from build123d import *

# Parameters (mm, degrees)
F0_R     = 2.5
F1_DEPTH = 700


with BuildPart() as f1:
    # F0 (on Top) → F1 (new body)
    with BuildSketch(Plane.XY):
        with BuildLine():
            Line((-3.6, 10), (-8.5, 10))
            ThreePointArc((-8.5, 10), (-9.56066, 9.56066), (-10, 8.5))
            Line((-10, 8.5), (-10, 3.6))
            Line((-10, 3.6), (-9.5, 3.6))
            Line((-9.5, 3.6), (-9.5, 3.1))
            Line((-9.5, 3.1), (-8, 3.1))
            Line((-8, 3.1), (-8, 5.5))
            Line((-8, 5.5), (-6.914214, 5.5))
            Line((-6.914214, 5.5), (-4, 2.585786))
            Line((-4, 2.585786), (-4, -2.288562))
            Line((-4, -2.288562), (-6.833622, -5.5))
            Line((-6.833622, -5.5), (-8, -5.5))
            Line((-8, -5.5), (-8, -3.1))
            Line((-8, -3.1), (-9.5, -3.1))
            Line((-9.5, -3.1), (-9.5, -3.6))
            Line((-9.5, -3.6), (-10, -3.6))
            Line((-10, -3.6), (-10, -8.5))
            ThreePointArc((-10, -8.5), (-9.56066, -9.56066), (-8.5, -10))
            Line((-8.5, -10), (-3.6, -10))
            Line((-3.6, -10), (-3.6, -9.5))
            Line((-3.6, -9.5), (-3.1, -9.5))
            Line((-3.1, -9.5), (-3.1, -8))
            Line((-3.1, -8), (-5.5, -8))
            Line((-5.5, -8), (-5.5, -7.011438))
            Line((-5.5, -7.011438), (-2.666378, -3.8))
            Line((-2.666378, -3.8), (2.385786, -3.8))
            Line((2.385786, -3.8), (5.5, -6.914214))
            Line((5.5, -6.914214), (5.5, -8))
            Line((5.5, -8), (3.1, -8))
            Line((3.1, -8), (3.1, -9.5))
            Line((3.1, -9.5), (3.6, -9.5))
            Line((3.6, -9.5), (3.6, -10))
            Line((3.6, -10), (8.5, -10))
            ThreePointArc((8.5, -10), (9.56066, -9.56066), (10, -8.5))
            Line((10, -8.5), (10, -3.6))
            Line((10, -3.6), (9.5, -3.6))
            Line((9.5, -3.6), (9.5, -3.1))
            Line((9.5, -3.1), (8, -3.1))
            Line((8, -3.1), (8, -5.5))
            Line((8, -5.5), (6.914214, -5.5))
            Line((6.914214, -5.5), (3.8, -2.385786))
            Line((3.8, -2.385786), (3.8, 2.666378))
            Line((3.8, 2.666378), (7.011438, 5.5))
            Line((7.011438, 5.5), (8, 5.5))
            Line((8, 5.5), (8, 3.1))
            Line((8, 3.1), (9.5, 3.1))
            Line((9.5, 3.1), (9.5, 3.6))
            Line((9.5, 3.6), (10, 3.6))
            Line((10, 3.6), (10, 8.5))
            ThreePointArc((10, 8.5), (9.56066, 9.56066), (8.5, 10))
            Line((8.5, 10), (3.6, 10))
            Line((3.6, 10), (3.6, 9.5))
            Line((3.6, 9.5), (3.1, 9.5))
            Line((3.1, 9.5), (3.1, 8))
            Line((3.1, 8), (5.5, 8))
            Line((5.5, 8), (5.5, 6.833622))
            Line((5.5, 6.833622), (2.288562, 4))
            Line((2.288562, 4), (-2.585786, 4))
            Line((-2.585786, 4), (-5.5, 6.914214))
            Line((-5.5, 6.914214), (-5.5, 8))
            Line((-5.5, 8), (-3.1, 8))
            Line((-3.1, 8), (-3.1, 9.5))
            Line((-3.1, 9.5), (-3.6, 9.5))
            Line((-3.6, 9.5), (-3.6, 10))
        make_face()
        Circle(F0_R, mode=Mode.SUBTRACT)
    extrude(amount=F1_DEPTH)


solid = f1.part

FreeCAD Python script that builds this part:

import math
import FreeCAD as App
import Part
import Sketcher

V = App.Vector
Q = App.Units.Quantity

doc = App.newDocument("Part")
body = doc.addObject("PartDesign::Body", "Body")

# Sketch on XY plane
sketch1 = body.newObject("Sketcher::SketchObject", "Sketch")
sketch1.AttachmentSupport = (doc.getObject("XY_Plane"), [""])
sketch1.MapMode = "FlatFace"
sketch1.addGeometry([
    Part.LineSegment(V(-3.6, 10, 0), V(-8.5, 10, 0)),  # 0
    Part.ArcOfCircle(Part.Circle(V(-8.5, 8.5, 0), V(0, 0, 1), 1.5), math.radians(90), math.radians(180)),  # 1
    Part.LineSegment(V(-10, 8.5, 0), V(-10, 3.6, 0)),  # 2
    Part.LineSegment(V(-10, 3.6, 0), V(-9.5, 3.6, 0)),  # 3
    Part.LineSegment(V(-9.5, 3.6, 0), V(-9.5, 3.1, 0)),  # 4
    Part.LineSegment(V(-9.5, 3.1, 0), V(-8, 3.1, 0)),  # 5
    Part.LineSegment(V(-8, 3.1, 0), V(-8, 5.5, 0)),  # 6
    Part.LineSegment(V(-8, 5.5, 0), V(-6.9, 5.5, 0)),  # 7
    Part.LineSegment(V(-6.9, 5.5, 0), V(-4, 2.6, 0)),  # 8
    Part.LineSegment(V(-4, 2.6, 0), V(-4, -2.3, 0)),  # 9
    Part.LineSegment(V(-4, -2.3, 0), V(-6.8, -5.5, 0)),  # 10
    Part.LineSegment(V(-6.8, -5.5, 0), V(-8, -5.5, 0)),  # 11
    Part.LineSegment(V(-8, -5.5, 0), V(-8, -3.1, 0)),  # 12
    Part.LineSegment(V(-8, -3.1, 0), V(-9.5, -3.1, 0)),  # 13
    Part.LineSegment(V(-9.5, -3.1, 0), V(-9.5, -3.6, 0)),  # 14
    Part.LineSegment(V(-9.5, -3.6, 0), V(-10, -3.6, 0)),  # 15
    Part.LineSegment(V(-10, -3.6, 0), V(-10, -8.5, 0)),  # 16
    Part.ArcOfCircle(Part.Circle(V(-8.5, -8.5, 0), V(0, 0, 1), 1.5), math.radians(-180), math.radians(-90)),  # 17
    Part.LineSegment(V(-8.5, -10, 0), V(-3.6, -10, 0)),  # 18
    Part.LineSegment(V(-3.6, -10, 0), V(-3.6, -9.5, 0)),  # 19
    Part.LineSegment(V(-3.6, -9.5, 0), V(-3.1, -9.5, 0)),  # 20
    Part.LineSegment(V(-3.1, -9.5, 0), V(-3.1, -8, 0)),  # 21
    Part.LineSegment(V(-3.1, -8, 0), V(-5.5, -8, 0)),  # 22
    Part.LineSegment(V(-5.5, -8, 0), V(-5.5, -7, 0)),  # 23
    Part.LineSegment(V(-5.5, -7, 0), V(-2.7, -3.8, 0)),  # 24
    Part.LineSegment(V(-2.7, -3.8, 0), V(2.4, -3.8, 0)),  # 25
    Part.LineSegment(V(2.4, -3.8, 0), V(5.5, -6.9, 0)),  # 26
    Part.LineSegment(V(5.5, -6.9, 0), V(5.5, -8, 0)),  # 27
    Part.LineSegment(V(5.5, -8, 0), V(3.1, -8, 0)),  # 28
    Part.LineSegment(V(3.1, -8, 0), V(3.1, -9.5, 0)),  # 29
    Part.LineSegment(V(3.1, -9.5, 0), V(3.6, -9.5, 0)),  # 30
    Part.LineSegment(V(3.6, -9.5, 0), V(3.6, -10, 0)),  # 31
    Part.LineSegment(V(3.6, -10, 0), V(8.5, -10, 0)),  # 32
    Part.ArcOfCircle(Part.Circle(V(8.5, -8.5, 0), V(0, 0, 1), 1.5), math.radians(-90), math.radians(0)),  # 33
    Part.LineSegment(V(10, -8.5, 0), V(10, -3.6, 0)),  # 34
    Part.LineSegment(V(10, -3.6, 0), V(9.5, -3.6, 0)),  # 35
    Part.LineSegment(V(9.5, -3.6, 0), V(9.5, -3.1, 0)),  # 36
    Part.LineSegment(V(9.5, -3.1, 0), V(8, -3.1, 0)),  # 37
    Part.LineSegment(V(8, -3.1, 0), V(8, -5.5, 0)),  # 38
    Part.LineSegment(V(8, -5.5, 0), V(6.9, -5.5, 0)),  # 39
    Part.LineSegment(V(6.9, -5.5, 0), V(3.8, -2.4, 0)),  # 40
    Part.LineSegment(V(3.8, -2.4, 0), V(3.8, 2.7, 0)),  # 41
    Part.LineSegment(V(3.8, 2.7, 0), V(7, 5.5, 0)),  # 42
    Part.LineSegment(V(7, 5.5, 0), V(8, 5.5, 0)),  # 43
    Part.LineSegment(V(8, 5.5, 0), V(8, 3.1, 0)),  # 44
    Part.LineSegment(V(8, 3.1, 0), V(9.5, 3.1, 0)),  # 45
    Part.LineSegment(V(9.5, 3.1, 0), V(9.5, 3.6, 0)),  # 46
    Part.LineSegment(V(9.5, 3.6, 0), V(10, 3.6, 0)),  # 47
    Part.LineSegment(V(10, 3.6, 0), V(10, 8.5, 0)),  # 48
    Part.ArcOfCircle(Part.Circle(V(8.5, 8.5, 0), V(0, 0, 1), 1.5), math.radians(0), math.radians(90)),  # 49
    Part.LineSegment(V(8.5, 10, 0), V(3.6, 10, 0)),  # 50
    Part.LineSegment(V(3.6, 10, 0), V(3.6, 9.5, 0)),  # 51
    Part.LineSegment(V(3.6, 9.5, 0), V(3.1, 9.5, 0)),  # 52
    Part.LineSegment(V(3.1, 9.5, 0), V(3.1, 8, 0)),  # 53
    Part.LineSegment(V(3.1, 8, 0), V(5.5, 8, 0)),  # 54
    Part.LineSegment(V(5.5, 8, 0), V(5.5, 6.8, 0)),  # 55
    Part.LineSegment(V(5.5, 6.8, 0), V(2.3, 4, 0)),  # 56
    Part.LineSegment(V(2.3, 4, 0), V(-2.6, 4, 0)),  # 57
    Part.LineSegment(V(-2.6, 4, 0), V(-5.5, 6.9, 0)),  # 58
    Part.LineSegment(V(-5.5, 6.9, 0), V(-5.5, 8, 0)),  # 59
    Part.LineSegment(V(-5.5, 8, 0), V(-3.1, 8, 0)),  # 60
    Part.LineSegment(V(-3.1, 8, 0), V(-3.1, 9.5, 0)),  # 61
    Part.LineSegment(V(-3.1, 9.5, 0), V(-3.6, 9.5, 0)),  # 62
    Part.LineSegment(V(-3.6, 9.5, 0), V(-3.6, 10, 0)),  # 63
    Part.Circle(V(0, 0, 0), V(0, 0, 1), 2.5),  # 64
], False)
sketch1.addConstraint([
    Sketcher.Constraint("Tangent", 0, 2, 1, 1),
    Sketcher.Constraint("Tangent", 1, 2, 2, 1),
    Sketcher.Constraint("Coincident", 2, 2, 3, 1),
    Sketcher.Constraint("Coincident", 3, 2, 4, 1),
    Sketcher.Constraint("Coincident", 4, 2, 5, 1),
    Sketcher.Constraint("Coincident", 5, 2, 6, 1),
    Sketcher.Constraint("Coincident", 6, 2, 7, 1),
    Sketcher.Constraint("Coincident", 7, 2, 8, 1),
    Sketcher.Constraint("Coincident", 8, 2, 9, 1),
    Sketcher.Constraint("Coincident", 9, 2, 10, 1),
    Sketcher.Constraint("Coincident", 10, 2, 11, 1),
    Sketcher.Constraint("Coincident", 11, 2, 12, 1),
    Sketcher.Constraint("Coincident", 12, 2, 13, 1),
    Sketcher.Constraint("Coincident", 13, 2, 14, 1),
    Sketcher.Constraint("Coincident", 14, 2, 15, 1),
    Sketcher.Constraint("Coincident", 15, 2, 16, 1),
    Sketcher.Constraint("Tangent", 16, 2, 17, 1),
    Sketcher.Constraint("Tangent", 17, 2, 18, 1),
    Sketcher.Constraint("Coincident", 18, 2, 19, 1),
    Sketcher.Constraint("Coincident", 19, 2, 20, 1),
    Sketcher.Constraint("Coincident", 20, 2, 21, 1),
    Sketcher.Constraint("Coincident", 21, 2, 22, 1),
    Sketcher.Constraint("Coincident", 22, 2, 23, 1),
    Sketcher.Constraint("Coincident", 23, 2, 24, 1),
    Sketcher.Constraint("Coincident", 24, 2, 25, 1),
    Sketcher.Constraint("Coincident", 25, 2, 26, 1),
    Sketcher.Constraint("Coincident", 26, 2, 27, 1),
    Sketcher.Constraint("Coincident", 27, 2, 28, 1),
    Sketcher.Constraint("Coincident", 28, 2, 29, 1),
    Sketcher.Constraint("Coincident", 29, 2, 30, 1),
    Sketcher.Constraint("Coincident", 30, 2, 31, 1),
    Sketcher.Constraint("Coincident", 31, 2, 32, 1),
    Sketcher.Constraint("Tangent", 32, 2, 33, 1),
    Sketcher.Constraint("Tangent", 33, 2, 34, 1),
    Sketcher.Constraint("Coincident", 34, 2, 35, 1),
    Sketcher.Constraint("Coincident", 35, 2, 36, 1),
    Sketcher.Constraint("Coincident", 36, 2, 37, 1),
    Sketcher.Constraint("Coincident", 37, 2, 38, 1),
    Sketcher.Constraint("Coincident", 38, 2, 39, 1),
    Sketcher.Constraint("Coincident", 39, 2, 40, 1),
    Sketcher.Constraint("Coincident", 40, 2, 41, 1),
    Sketcher.Constraint("Coincident", 41, 2, 42, 1),
    Sketcher.Constraint("Coincident", 42, 2, 43, 1),
    Sketcher.Constraint("Coincident", 43, 2, 44, 1),
    Sketcher.Constraint("Coincident", 44, 2, 45, 1),
    Sketcher.Constraint("Coincident", 45, 2, 46, 1),
    Sketcher.Constraint("Coincident", 46, 2, 47, 1),
    Sketcher.Constraint("Coincident", 47, 2, 48, 1),
    Sketcher.Constraint("Tangent", 48, 2, 49, 1),
    Sketcher.Constraint("Tangent", 49, 2, 50, 1),
    Sketcher.Constraint("Coincident", 50, 2, 51, 1),
    Sketcher.Constraint("Coincident", 51, 2, 52, 1),
    Sketcher.Constraint("Coincident", 52, 2, 53, 1),
    Sketcher.Constraint("Coincident", 53, 2, 54, 1),
    Sketcher.Constraint("Coincident", 54, 2, 55, 1),
    Sketcher.Constraint("Coincident", 55, 2, 56, 1),
    Sketcher.Constraint("Coincident", 56, 2, 57, 1),
    Sketcher.Constraint("Coincident", 57, 2, 58, 1),
    Sketcher.Constraint("Coincident", 58, 2, 59, 1),
    Sketcher.Constraint("Coincident", 59, 2, 60, 1),
    Sketcher.Constraint("Coincident", 60, 2, 61, 1),
    Sketcher.Constraint("Coincident", 61, 2, 62, 1),
    Sketcher.Constraint("Coincident", 62, 2, 63, 1),
    Sketcher.Constraint("Coincident", 63, 2, 0, 1),
    Sketcher.Constraint("Horizontal", 0),
    Sketcher.Constraint("Vertical", 2),
    Sketcher.Constraint("Horizontal", 3),
    Sketcher.Constraint("Vertical", 4),
    Sketcher.Constraint("Horizontal", 5),
    Sketcher.Constraint("Vertical", 6),
    Sketcher.Constraint("Horizontal", 7),
    Sketcher.Constraint("Vertical", 9),
    Sketcher.Constraint("Horizontal", 11),
    Sketcher.Constraint("Vertical", 12),
    Sketcher.Constraint("Horizontal", 13),
    Sketcher.Constraint("Vertical", 14),
    Sketcher.Constraint("Horizontal", 15),
    Sketcher.Constraint("Vertical", 16),
    Sketcher.Constraint("Horizontal", 18),
    Sketcher.Constraint("Vertical", 19),
    Sketcher.Constraint("Horizontal", 20),
    Sketcher.Constraint("Vertical", 21),
    Sketcher.Constraint("Horizontal", 22),
    Sketcher.Constraint("Vertical", 23),
    Sketcher.Constraint("Horizontal", 25),
    Sketcher.Constraint("Vertical", 27),
    Sketcher.Constraint("Horizontal", 28),
    Sketcher.Constraint("Vertical", 29),
    Sketcher.Constraint("Horizontal", 30),
    Sketcher.Constraint("Vertical", 31),
    Sketcher.Constraint("Horizontal", 32),
    Sketcher.Constraint("Vertical", 34),
    Sketcher.Constraint("Horizontal", 35),
    Sketcher.Constraint("Vertical", 36),
    Sketcher.Constraint("Horizontal", 37),
    Sketcher.Constraint("Vertical", 38),
    Sketcher.Constraint("Horizontal", 39),
    Sketcher.Constraint("Vertical", 41),
    Sketcher.Constraint("Horizontal", 43),
    Sketcher.Constraint("Vertical", 44),
    Sketcher.Constraint("Horizontal", 45),
    Sketcher.Constraint("Vertical", 46),
    Sketcher.Constraint("Horizontal", 47),
    Sketcher.Constraint("Vertical", 48),
    Sketcher.Constraint("Horizontal", 50),
    Sketcher.Constraint("Vertical", 51),
    Sketcher.Constraint("Horizontal", 52),
    Sketcher.Constraint("Vertical", 53),
    Sketcher.Constraint("Horizontal", 54),
    Sketcher.Constraint("Vertical", 55),
    Sketcher.Constraint("Horizontal", 57),
    Sketcher.Constraint("Vertical", 59),
    Sketcher.Constraint("Horizontal", 60),
    Sketcher.Constraint("Vertical", 61),
    Sketcher.Constraint("Horizontal", 62),
    Sketcher.Constraint("Vertical", 63),
    Sketcher.Constraint("Coincident", 64, 3, -1, 1),
    Sketcher.Constraint("Equal", 1, 17),
    Sketcher.Constraint("Equal", 17, 33),
    Sketcher.Constraint("Equal", 33, 49),
    Sketcher.Constraint("Symmetric", 1, 3, 33, 3, -1, 1),
    Sketcher.Constraint("Symmetric", 17, 3, 49, 3, -1, 1),
    Sketcher.Constraint("Symmetric", 3, 2, 35, 2, -1, 1),
    Sketcher.Constraint("Symmetric", 5, 2, 37, 2, -1, 1),
    Sketcher.Constraint("Symmetric", 7, 2, 39, 2, -1, 1),
    Sketcher.Constraint("Symmetric", 11, 2, 43, 2, -1, 1),
    Sketcher.Constraint("Symmetric", 13, 2, 45, 2, -1, 1),
    Sketcher.Constraint("Symmetric", 19, 2, 51, 2, -1, 1),
    Sketcher.Constraint("Symmetric", 21, 2, 53, 2, -1, 1),
    Sketcher.Constraint("Symmetric", 26, 2, 58, 2, -1, 1),
    Sketcher.Constraint("Symmetric", 28, 2, 60, 2, -1, 1),
    Sketcher.Constraint("Symmetric", 30, 2, 62, 2, -1, 1),
    Sketcher.Constraint("Symmetric", 17, 3, 33, 3, -2),
    Sketcher.Constraint("Symmetric", 22, 2, 27, 2, -2),
    Sketcher.Constraint("Symmetric", 20, 2, 29, 2, -2),
    Sketcher.Constraint("Symmetric", 14, 2, 35, 2, -2),
    Sketcher.Constraint("Symmetric", 12, 2, 37, 2, -2),
    Sketcher.Constraint("Parallel", 10, 24),
    Sketcher.Constraint("Parallel", 8, 26),
    Sketcher.Constraint("Parallel", 26, 40),
    Sketcher.Constraint("Parallel", 42, 56),
    Sketcher.Constraint("Parallel", 40, 58),
    Sketcher.Constraint("Horizontal", 11, 2, 38, 2),
    Sketcher.Constraint("Horizontal", 3, 2, 46, 2),
    Sketcher.Constraint("Vertical", 31, 2, 50, 2),
    Sketcher.Constraint("Vertical", 27, 2, 54, 2),
    Sketcher.Constraint("Equal", 15, 20),
    Sketcher.Constraint("Equal", 50, 2),
    Sketcher.Constraint("Equal", 62, 4),
    Sketcher.Constraint("Equal", 60, 6),
    Sketcher.Constraint("Equal", 57, 9),
    Sketcher.Constraint("Equal", 14, 19),
    Sketcher.Constraint("Equal", 45, 21),
    Sketcher.Constraint("Equal", 43, 23),
    Sketcher.Constraint("Equal", 39, 27),
    Sketcher.Constraint("Equal", 25, 41),
    Sketcher.Constraint("Equal", 11, 55),
    Sketcher.Constraint("Equal", 10, 24),
    Sketcher.Constraint("Equal", 26, 40),
    Sketcher.Constraint("Equal", 24, 42),
    Sketcher.Constraint("Equal", 42, 56),
    Sketcher.Constraint("Diameter", 64, Q("5 mm")),
    Sketcher.Constraint("Radius", 1, Q("1.500001 mm")),
    Sketcher.Constraint("DistanceX", 0, 2, 0, 1, Q("4.9 mm")),
    Sketcher.Constraint("DistanceX", 3, 1, 3, 2, Q("0.5 mm")),
    Sketcher.Constraint("DistanceX", 5, 1, 5, 2, Q("1.5 mm")),
    Sketcher.Constraint("DistanceX", 22, 2, 22, 1, Q("2.4 mm")),
    Sketcher.Constraint("DistanceY", -1, 1, 0, 2, Q("10 mm")),
    Sketcher.Constraint("DistanceX", 8, 2, -1, 1, Q("4 mm")),
    Sketcher.Constraint("DistanceY", 24, 2, -1, 1, Q("3.8 mm")),
    Sketcher.Constraint("DistanceX", 43, 1, 43, 2, Q("0.988562 mm")),
    Sketcher.Constraint("DistanceX", 57, 2, 57, 1, Q("4.874348 mm")),
    Sketcher.Constraint("DistanceX", 11, 2, 11, 1, Q("1.166378 mm")),
])
pad1 = body.newObject("PartDesign::Pad", "Pad")
pad1.Profile = sketch1
pad1.Length = 700

doc.recompute()
